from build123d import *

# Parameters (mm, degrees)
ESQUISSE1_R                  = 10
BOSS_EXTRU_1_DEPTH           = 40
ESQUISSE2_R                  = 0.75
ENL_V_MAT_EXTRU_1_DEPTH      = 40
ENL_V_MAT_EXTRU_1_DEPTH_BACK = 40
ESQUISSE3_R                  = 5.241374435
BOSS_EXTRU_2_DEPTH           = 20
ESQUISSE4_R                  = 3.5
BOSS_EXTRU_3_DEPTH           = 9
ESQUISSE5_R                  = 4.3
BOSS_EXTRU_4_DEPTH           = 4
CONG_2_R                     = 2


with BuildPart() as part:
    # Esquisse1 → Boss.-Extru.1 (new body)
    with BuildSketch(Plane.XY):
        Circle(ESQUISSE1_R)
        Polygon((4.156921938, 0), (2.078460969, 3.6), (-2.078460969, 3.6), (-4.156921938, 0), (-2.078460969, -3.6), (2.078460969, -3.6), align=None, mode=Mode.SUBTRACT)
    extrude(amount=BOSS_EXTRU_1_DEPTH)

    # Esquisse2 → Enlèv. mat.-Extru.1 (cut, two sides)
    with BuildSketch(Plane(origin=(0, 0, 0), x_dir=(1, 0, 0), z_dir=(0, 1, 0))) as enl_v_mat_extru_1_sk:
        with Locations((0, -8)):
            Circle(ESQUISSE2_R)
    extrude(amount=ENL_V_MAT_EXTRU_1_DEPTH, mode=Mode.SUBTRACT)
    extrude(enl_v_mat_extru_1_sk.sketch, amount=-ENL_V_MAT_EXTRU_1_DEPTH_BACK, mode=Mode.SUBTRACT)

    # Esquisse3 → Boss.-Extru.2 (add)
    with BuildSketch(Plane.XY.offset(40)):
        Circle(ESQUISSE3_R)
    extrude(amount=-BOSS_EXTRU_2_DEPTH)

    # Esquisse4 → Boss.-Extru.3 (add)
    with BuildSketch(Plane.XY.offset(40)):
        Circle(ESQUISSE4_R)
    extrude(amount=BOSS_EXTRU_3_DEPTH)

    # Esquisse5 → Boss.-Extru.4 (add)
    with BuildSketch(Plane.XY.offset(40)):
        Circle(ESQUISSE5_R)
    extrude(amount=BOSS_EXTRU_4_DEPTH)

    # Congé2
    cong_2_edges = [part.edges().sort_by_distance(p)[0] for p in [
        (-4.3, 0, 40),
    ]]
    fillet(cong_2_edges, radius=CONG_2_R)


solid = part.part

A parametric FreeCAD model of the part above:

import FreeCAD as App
import Part
import Sketcher

V = App.Vector
Q = App.Units.Quantity


def edges_at(feature, points):
    """Names of the edges that pass closest to the given points."""
    edges = feature.Shape.Edges
    near = lambda p: min(range(len(edges)), key=lambda i: edges[i].distToShape(Part.Vertex(*p))[0])
    return sorted({f"Edge{near(p) + 1}" for p in points})


def add_polygon(sketch, points):
    """Adds a closed chain of lines whose ends are joined by coincident constraints."""
    first, n = sketch.GeometryCount, len(points)
    for a, b in zip(points, points[1:] + points[:1]):
        sketch.addGeometry(Part.LineSegment(App.Vector(*a, 0), App.Vector(*b, 0)), False)
    for i in range(n):
        sketch.addConstraint(Sketcher.Constraint("Coincident", first + i, 2, first + (i + 1) % n, 1))

doc = App.newDocument("Part")
body = doc.addObject("PartDesign::Body", "Body")

# Sketch on XY plane
sketch1 = doc.addObject("Sketcher::SketchObject", "Sketch")
body.addObject(sketch1)
sketch1.AttachmentSupport = (doc.XY_Plane, [""])
sketch1.MapMode = "FlatFace"
sketch1.addGeometry(Part.Circle(V(0, 0, 0), V(0, 0, 1), 10), False)  # 0
add_polygon(sketch1, [(2.1, 3.6), (4.2, 0), (2.1, -3.6), (-2.1, -3.6), (-4.2, 0), (-2.1, 3.6)])  # lines 1-6
sketch1.addConstraint([
    Sketcher.Constraint("Horizontal", 3),
    Sketcher.Constraint("Horizontal", 6),
    Sketcher.Constraint("Coincident", 0, 3, -1, 1),
    Sketcher.Constraint("Symmetric", 1, 2, 4, 2, -1, 1),
    Sketcher.Constraint("Symmetric", 2, 2, 5, 2, -1, 1),
    Sketcher.Constraint("PointOnObject", 1, 2, -1),
    Sketcher.Constraint("Parallel", 1, 4),
    Sketcher.Constraint("Vertical", 3, 2, 5, 2),
    Sketcher.Constraint("Diameter", 0, Q("20 mm")),
    Sketcher.Constraint("Angle", 1, Q("-60 deg")),
    Sketcher.Constraint("DistanceY", 2, 2, -1, 1, Q("3.6 mm")),
    Sketcher.Constraint("DistanceX", 3, 2, 3, 1, Q("4.156922 mm")),
])
pad1 = doc.addObject("PartDesign::Pad", "Pad")
body.addObject(pad1)
pad1.Profile = sketch1
pad1.Length = 40

# Sketch on XZ plane
sketch2 = doc.addObject("Sketcher::SketchObject", "Sketch001")
body.addObject(sketch2)
sketch2.AttachmentSupport = (doc.XZ_Plane, [""])
sketch2.MapMode = "FlatFace"
sketch2.addGeometry(Part.Circle(V(0, 8, 0), V(0, 0, 1), 0.8), False)
sketch2.addConstraint([
    Sketcher.Constraint("PointOnObject", 0, 3, -2),
    Sketcher.Constraint("Diameter", 0, Q("1.5 mm")),
    Sketcher.Constraint("DistanceY", -1, 1, 0, 3, Q("8 mm")),
])
pocket1 = doc.addObject("PartDesign::Pocket", "Pocket")
body.addObject(pocket1)
pocket1.Profile = sketch2
pocket1.Type = "ThroughAll"
pocket1.Midplane = True

# Sketch on XY plane
sketch3 = doc.addObject("Sketcher::SketchObject", "Sketch002")
body.addObject(sketch3)
sketch3.AttachmentSupport = (doc.XY_Plane, [""])
sketch3.MapMode = "FlatFace"
sketch3.AttachmentOffset = App.Placement(V(0, 0, 40), App.Rotation())
sketch3.addGeometry(Part.Circle(V(0, 0, 0), V(0, 0, 1), 5), False)
sketch3.addConstraint([
    Sketcher.Constraint("Coincident", 0, 3, -1, 1),
    Sketcher.Constraint("Diameter", 0, Q("10.482749 mm")),
])
pad2 = doc.addObject("PartDesign::Pad", "Pad001")
body.addObject(pad2)
pad2.Profile = sketch3
pad2.Length = 20
pad2.Reversed = True

# Sketch on XY plane
sketch4 = doc.addObject("Sketcher::SketchObject", "Sketch003")
body.addObject(sketch4)
sketch4.AttachmentSupport = (doc.XY_Plane, [""])
sketch4.MapMode = "FlatFace"
sketch4.AttachmentOffset = App.Placement(V(0, 0, 40), App.Rotation())
sketch4.addGeometry(Part.Circle(V(0, 0, 0), V(0, 0, 1), 3.5), False)
sketch4.addConstraint([
    Sketcher.Constraint("Coincident", 0, 3, -1, 1),
    Sketcher.Constraint("Diameter", 0, Q("7 mm")),
])
pad3 = doc.addObject("PartDesign::Pad", "Pad002")
body.addObject(pad3)
pad3.Profile = sketch4
pad3.Length = 9

# Sketch on XY plane
sketch5 = doc.addObject("Sketcher::SketchObject", "Sketch004")
body.addObject(sketch5)
sketch5.AttachmentSupport = (doc.XY_Plane, [""])
sketch5.MapMode = "FlatFace"
sketch5.AttachmentOffset = App.Placement(V(0, 0, 40), App.Rotation())
sketch5.addGeometry(Part.Circle(V(0, 0, 0), V(0, 0, 1), 4.3), False)
sketch5.addConstraint([
    Sketcher.Constraint("Coincident", 0, 3, -1, 1),
    Sketcher.Constraint("Diameter", 0, Q("8.6 mm")),
])
pad4 = doc.addObject("PartDesign::Pad", "Pad003")
body.addObject(pad4)
pad4.Profile = sketch5
pad4.Length = 4
doc.recompute()

fillet = doc.addObject("PartDesign::Fillet", "Fillet")
body.addObject(fillet)
fillet.Base = (pad4, edges_at(pad4, [(-4.3, 0, 40)]))
fillet.Radius = 2

doc.recompute()
